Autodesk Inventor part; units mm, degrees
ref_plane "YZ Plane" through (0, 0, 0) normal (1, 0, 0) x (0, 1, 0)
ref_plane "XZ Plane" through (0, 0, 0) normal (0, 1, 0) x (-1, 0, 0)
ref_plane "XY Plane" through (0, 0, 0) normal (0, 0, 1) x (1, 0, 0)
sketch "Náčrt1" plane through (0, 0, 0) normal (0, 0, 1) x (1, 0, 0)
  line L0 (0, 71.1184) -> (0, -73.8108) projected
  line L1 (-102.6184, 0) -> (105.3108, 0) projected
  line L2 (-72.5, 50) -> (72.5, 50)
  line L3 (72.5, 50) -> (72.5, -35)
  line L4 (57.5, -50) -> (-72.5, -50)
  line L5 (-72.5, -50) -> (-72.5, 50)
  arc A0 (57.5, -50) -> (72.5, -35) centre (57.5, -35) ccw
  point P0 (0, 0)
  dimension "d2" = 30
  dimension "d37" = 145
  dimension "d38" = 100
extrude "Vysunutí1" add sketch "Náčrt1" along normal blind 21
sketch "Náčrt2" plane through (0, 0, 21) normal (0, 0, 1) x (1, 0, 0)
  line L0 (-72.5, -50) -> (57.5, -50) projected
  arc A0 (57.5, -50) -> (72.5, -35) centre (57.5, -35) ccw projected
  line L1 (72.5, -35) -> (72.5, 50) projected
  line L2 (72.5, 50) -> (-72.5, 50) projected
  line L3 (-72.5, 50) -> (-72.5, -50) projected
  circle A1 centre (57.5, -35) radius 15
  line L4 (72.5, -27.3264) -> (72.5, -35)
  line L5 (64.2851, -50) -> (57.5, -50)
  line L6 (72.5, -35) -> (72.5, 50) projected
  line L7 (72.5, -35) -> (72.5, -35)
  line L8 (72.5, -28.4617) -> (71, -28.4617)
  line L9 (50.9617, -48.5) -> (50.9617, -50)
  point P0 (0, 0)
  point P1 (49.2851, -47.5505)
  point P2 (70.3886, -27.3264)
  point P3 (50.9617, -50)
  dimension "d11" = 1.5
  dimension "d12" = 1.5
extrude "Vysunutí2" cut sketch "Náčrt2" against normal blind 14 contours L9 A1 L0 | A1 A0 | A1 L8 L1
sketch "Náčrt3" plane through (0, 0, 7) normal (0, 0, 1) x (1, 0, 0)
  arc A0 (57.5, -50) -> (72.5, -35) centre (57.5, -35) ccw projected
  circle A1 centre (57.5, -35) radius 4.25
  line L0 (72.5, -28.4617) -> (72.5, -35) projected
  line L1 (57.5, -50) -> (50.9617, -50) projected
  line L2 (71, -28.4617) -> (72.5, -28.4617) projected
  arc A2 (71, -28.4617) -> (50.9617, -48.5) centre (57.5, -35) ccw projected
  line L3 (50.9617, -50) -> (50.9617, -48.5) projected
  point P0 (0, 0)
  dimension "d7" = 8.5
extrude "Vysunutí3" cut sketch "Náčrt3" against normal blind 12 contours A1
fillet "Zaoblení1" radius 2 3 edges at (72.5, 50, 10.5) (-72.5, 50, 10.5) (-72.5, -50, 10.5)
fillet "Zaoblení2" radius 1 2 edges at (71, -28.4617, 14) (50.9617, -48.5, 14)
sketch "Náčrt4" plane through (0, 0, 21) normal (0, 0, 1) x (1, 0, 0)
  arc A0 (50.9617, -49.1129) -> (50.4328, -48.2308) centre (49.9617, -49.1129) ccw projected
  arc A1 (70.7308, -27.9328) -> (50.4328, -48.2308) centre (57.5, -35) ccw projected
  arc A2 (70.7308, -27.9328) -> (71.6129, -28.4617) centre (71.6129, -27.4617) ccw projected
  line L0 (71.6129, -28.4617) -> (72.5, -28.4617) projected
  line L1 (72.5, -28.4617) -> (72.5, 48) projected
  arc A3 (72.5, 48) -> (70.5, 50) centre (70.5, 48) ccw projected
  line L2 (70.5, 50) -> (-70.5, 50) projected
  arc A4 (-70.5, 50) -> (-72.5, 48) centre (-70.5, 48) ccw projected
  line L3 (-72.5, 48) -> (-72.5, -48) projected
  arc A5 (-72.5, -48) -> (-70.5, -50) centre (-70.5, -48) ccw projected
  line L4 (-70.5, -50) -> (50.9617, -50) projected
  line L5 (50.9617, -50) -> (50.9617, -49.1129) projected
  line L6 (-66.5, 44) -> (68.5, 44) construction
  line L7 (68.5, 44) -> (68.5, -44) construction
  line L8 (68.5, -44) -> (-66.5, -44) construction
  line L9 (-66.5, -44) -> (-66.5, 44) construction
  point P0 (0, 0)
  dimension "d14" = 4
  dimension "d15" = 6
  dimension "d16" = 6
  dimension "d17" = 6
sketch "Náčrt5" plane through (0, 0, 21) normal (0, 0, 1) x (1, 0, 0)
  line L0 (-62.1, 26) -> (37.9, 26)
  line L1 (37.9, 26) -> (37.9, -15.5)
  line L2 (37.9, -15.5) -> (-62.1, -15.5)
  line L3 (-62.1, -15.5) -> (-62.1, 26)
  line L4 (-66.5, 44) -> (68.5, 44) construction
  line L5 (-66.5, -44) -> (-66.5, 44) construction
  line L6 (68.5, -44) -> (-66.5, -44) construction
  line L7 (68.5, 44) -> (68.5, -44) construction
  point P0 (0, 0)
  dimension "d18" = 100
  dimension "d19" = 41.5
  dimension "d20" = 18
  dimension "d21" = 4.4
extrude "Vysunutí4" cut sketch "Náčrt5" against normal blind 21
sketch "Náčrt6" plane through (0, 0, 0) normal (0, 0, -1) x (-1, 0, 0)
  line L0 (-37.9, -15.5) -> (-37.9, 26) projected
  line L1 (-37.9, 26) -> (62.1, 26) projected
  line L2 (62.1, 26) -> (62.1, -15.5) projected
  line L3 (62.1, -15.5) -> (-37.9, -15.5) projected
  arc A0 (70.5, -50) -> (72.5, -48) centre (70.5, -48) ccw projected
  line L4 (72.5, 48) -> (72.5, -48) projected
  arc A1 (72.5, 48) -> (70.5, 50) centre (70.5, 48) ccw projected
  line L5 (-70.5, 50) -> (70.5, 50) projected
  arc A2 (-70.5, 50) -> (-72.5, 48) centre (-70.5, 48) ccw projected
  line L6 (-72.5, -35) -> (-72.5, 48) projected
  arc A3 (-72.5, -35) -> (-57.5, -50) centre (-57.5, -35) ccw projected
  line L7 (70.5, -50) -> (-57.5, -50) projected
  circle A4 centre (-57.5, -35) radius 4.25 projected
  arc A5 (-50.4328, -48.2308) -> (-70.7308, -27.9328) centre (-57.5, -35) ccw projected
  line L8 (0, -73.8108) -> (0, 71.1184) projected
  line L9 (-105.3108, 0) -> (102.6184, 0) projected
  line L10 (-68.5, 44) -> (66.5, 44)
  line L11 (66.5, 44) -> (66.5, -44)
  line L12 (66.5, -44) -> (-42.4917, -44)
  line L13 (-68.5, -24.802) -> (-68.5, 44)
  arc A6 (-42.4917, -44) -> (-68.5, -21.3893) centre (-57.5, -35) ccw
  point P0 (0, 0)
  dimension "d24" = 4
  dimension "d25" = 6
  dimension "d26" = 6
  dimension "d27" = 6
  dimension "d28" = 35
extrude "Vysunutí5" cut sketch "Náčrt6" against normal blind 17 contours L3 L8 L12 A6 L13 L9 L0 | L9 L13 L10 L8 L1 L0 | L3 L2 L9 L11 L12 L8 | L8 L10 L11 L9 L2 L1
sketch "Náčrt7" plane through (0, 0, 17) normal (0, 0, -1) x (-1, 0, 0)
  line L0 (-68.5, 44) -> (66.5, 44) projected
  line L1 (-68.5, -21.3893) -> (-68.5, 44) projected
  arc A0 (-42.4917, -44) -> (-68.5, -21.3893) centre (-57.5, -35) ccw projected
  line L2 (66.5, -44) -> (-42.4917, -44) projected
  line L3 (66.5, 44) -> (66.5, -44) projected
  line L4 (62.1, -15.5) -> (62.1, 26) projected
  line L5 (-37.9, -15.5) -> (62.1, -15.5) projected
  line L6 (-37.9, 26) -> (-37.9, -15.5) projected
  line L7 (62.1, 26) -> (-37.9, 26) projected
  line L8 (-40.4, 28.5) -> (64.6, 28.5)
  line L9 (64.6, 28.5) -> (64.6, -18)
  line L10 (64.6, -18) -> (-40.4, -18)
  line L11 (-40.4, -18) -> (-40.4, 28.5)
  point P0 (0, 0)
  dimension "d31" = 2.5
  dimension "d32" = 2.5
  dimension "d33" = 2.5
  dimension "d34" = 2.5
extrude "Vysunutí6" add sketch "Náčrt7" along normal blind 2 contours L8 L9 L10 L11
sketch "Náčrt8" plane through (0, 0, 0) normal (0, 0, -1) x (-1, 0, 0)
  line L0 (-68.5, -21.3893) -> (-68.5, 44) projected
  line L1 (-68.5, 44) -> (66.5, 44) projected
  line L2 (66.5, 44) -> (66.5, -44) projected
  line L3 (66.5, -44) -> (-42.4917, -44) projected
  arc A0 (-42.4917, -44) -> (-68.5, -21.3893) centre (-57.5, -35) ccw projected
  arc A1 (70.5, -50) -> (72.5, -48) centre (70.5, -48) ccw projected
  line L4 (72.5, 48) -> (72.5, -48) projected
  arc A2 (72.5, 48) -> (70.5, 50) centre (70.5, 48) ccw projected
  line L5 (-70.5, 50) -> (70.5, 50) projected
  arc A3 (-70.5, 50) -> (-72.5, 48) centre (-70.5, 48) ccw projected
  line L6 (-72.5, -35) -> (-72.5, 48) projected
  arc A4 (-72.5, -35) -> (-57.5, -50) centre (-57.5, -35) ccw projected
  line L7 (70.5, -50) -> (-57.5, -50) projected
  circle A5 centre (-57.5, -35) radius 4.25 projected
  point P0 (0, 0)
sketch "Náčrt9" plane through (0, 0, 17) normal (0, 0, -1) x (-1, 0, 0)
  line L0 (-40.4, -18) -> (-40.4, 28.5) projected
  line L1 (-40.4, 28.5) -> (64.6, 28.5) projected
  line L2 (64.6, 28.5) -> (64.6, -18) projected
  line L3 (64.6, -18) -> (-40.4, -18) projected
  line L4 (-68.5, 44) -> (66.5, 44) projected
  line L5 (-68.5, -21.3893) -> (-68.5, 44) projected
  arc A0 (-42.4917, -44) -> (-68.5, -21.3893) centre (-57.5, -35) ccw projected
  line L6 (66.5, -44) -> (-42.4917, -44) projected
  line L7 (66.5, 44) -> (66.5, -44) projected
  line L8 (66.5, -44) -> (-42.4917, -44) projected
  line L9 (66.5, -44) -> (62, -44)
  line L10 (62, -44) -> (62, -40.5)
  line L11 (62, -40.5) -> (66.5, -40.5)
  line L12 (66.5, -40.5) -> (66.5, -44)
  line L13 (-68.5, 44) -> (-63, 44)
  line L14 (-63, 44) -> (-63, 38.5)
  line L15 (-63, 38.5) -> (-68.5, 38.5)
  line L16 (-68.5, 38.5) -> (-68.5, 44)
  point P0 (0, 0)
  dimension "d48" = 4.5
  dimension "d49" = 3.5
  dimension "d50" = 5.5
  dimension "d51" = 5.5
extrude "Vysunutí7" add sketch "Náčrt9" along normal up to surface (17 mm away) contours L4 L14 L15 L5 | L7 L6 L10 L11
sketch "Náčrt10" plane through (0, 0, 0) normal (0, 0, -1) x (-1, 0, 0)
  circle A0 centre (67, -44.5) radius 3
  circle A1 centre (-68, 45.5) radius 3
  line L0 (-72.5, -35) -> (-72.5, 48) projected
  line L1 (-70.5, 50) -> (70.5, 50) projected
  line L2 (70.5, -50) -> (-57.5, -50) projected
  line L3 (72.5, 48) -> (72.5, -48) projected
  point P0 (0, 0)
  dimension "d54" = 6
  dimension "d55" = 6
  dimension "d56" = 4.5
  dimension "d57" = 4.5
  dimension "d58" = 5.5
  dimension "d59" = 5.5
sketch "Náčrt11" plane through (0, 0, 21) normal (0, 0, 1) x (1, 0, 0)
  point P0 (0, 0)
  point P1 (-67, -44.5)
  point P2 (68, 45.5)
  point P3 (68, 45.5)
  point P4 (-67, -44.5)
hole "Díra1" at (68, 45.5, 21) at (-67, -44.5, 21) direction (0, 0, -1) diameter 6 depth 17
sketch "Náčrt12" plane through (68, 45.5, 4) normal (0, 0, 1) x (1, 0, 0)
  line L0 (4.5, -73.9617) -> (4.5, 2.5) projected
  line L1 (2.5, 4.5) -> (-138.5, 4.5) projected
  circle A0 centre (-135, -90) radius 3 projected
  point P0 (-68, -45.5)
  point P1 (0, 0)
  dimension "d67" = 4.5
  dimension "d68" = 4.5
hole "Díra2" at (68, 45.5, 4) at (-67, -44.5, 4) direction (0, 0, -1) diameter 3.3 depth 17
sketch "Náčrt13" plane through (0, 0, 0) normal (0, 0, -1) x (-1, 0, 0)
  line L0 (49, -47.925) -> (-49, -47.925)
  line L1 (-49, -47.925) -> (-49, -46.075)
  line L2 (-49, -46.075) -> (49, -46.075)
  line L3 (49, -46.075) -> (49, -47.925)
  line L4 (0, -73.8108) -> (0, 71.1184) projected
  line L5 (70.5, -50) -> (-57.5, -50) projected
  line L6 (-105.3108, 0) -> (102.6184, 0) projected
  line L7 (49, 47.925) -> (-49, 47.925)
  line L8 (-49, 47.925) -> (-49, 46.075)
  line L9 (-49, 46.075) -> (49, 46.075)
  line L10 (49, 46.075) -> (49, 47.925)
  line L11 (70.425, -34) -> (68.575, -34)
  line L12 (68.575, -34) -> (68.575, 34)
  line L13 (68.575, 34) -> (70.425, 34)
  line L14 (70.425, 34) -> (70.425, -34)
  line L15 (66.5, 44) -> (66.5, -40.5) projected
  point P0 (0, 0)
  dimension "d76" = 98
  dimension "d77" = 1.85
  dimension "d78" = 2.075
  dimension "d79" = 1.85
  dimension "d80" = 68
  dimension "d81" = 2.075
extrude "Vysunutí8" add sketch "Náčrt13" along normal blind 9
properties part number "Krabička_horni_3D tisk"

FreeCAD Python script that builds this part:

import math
import FreeCAD as App
import Part
import Sketcher
from FreeCAD import Vector


def edges_at(feature, points):
    """Names of the edges that pass closest to the given points."""
    edges = feature.Shape.Edges
    near = lambda p: min(range(len(edges)), key=lambda i: edges[i].distToShape(Part.Vertex(*p))[0])
    return sorted({f"Edge{near(p) + 1}" for p in points})


def add_polygon(sketch, points):
    """Adds a closed chain of lines whose ends are joined by coincident constraints."""
    first, n = sketch.GeometryCount, len(points)
    for a, b in zip(points, points[1:] + points[:1]):
        sketch.addGeometry(Part.LineSegment(App.Vector(*a, 0), App.Vector(*b, 0)), False)
    for i in range(n):
        sketch.addConstraint(Sketcher.Constraint("Coincident", first + i, 2, first + (i + 1) % n, 1))

doc = App.newDocument("Part")
body = doc.addObject("PartDesign::Body", "Body")

# Sketch on XY plane
sketch1 = doc.addObject("Sketcher::SketchObject", "Sketch")
body.addObject(sketch1)
sketch1.AttachmentSupport = (doc.XY_Plane, [""])
sketch1.MapMode = "FlatFace"
sketch1.addGeometry([
    Part.LineSegment(Vector(72.5, 50, 0), Vector(-72.5, 50, 0)),  # 0
    Part.LineSegment(Vector(-72.5, 50, 0), Vector(-72.5, -50, 0)),  # 1
    Part.LineSegment(Vector(-72.5, -50, 0), Vector(57.5, -50, 0)),  # 2
    Part.ArcOfCircle(Part.Circle(Vector(57.5, -35, 0), Vector(0, 0, 1), 15), math.radians(-90), math.radians(0)),  # 3
    Part.LineSegment(Vector(72.5, -35, 0), Vector(72.5, 50, 0)),  # 4
], False)
sketch1.addConstraint([
    Sketcher.Constraint("Coincident", 0, 2, 1, 1),
    Sketcher.Constraint("Coincident", 1, 2, 2, 1),
    Sketcher.Constraint("Tangent", 2, 2, 3, 1),
    Sketcher.Constraint("Tangent", 3, 2, 4, 1),
    Sketcher.Constraint("Coincident", 4, 2, 0, 1),
    Sketcher.Constraint("Horizontal", 0),
    Sketcher.Constraint("Vertical", 1),
    Sketcher.Constraint("Horizontal", 2),
    Sketcher.Constraint("Vertical", 4),
    Sketcher.Constraint("Symmetric", 1, 2, 4, 2, -1, 1),
    Sketcher.Constraint("Radius", 3, 15.0),
    Sketcher.Constraint("DistanceX", 0, 2, 0, 1, 145.0),
    Sketcher.Constraint("DistanceY", 1, 2, 1, 1, 100.0),
])
pad1 = doc.addObject("PartDesign::Pad", "Pad")
body.addObject(pad1)
pad1.Profile = sketch1
pad1.Length = 21

# Sketch on XY plane
sketch2 = doc.addObject("Sketcher::SketchObject", "Sketch001")
body.addObject(sketch2)
sketch2.AttachmentSupport = (doc.XY_Plane, [""])
sketch2.MapMode = "FlatFace"
sketch2.AttachmentOffset = App.Placement(Vector(0, 0, 21), App.Rotation())
sketch2.addGeometry([
    Part.LineSegment(Vector(50.9617, -48.5, 0), Vector(50.9617, -50, 0)),  # 0
    Part.LineSegment(Vector(50.9617, -50, 0), Vector(57.5, -50, 0)),  # 1
    Part.ArcOfCircle(Part.Circle(Vector(57.5, -35, 0), Vector(0, 0, 1), 15), math.radians(-90), math.radians(0)),  # 2
    Part.LineSegment(Vector(72.5, -35, 0), Vector(72.5, -28.4617, 0)),  # 3
    Part.LineSegment(Vector(72.5, -28.4617, 0), Vector(71, -28.4617, 0)),  # 4
    Part.ArcOfCircle(Part.Circle(Vector(57.5, -35, 0), Vector(0, 0, 1), 15), math.radians(25.841766), math.radians(244.158234)),  # 5
], False)
sketch2.addConstraint([
    Sketcher.Constraint("Coincident", 0, 2, 1, 1),
    Sketcher.Constraint("Tangent", 1, 2, 2, 1),
    Sketcher.Constraint("Tangent", 2, 2, 3, 1),
    Sketcher.Constraint("Coincident", 3, 2, 4, 1),
    Sketcher.Constraint("Coincident", 4, 2, 5, 1),
    Sketcher.Constraint("Coincident", 5, 2, 0, 1),
    Sketcher.Constraint("Vertical", 0),
    Sketcher.Constraint("Horizontal", 1),
    Sketcher.Constraint("Vertical", 3),
    Sketcher.Constraint("Horizontal", 4),
    Sketcher.Constraint("Coincident", 5, 3, 2, 3),
    Sketcher.Constraint("Equal", 2, 5),
    Sketcher.Constraint("Equal", 4, 0),
    Sketcher.Constraint("DistanceX", 4, 2, 4, 1, 1.5),
    Sketcher.Constraint("Radius", 2, 15.0),
    Sketcher.Constraint("DistanceY", 2, 3, -1, 1, 35.0),
    Sketcher.Constraint("DistanceX", -1, 1, 4, 2, 71.0),
])
pocket1 = doc.addObject("PartDesign::Pocket", "Pocket")
body.addObject(pocket1)
pocket1.Profile = sketch2
pocket1.Length = 14

# Sketch on XY plane
sketch3 = doc.addObject("Sketcher::SketchObject", "Sketch002")
body.addObject(sketch3)
sketch3.AttachmentSupport = (doc.XY_Plane, [""])
sketch3.MapMode = "FlatFace"
sketch3.AttachmentOffset = App.Placement(Vector(0, 0, 7), App.Rotation())
sketch3.addGeometry(Part.Circle(Vector(57.5, -35, 0), Vector(0, 0, 1), 4.25), False)
sketch3.addConstraint([
    Sketcher.Constraint("Diameter", 0, 8.5),
    Sketcher.Constraint("DistanceY", 0, 3, -1, 1, 35.0),
    Sketcher.Constraint("DistanceX", -1, 1, 0, 3, 57.5),
])
pocket2 = doc.addObject("PartDesign::Pocket", "Pocket001")
body.addObject(pocket2)
pocket2.Profile = sketch3
pocket2.Length = 12
doc.recompute()

fillet = doc.addObject("PartDesign::Fillet", "Fillet")
body.addObject(fillet)
fillet.Base = (pocket2, edges_at(pocket2, [(72.5, 50, 10.5), (-72.5, 50, 10.5), (-72.5, -50, 10.5)]))
fillet.Radius = 2
doc.recompute()

fillet2 = doc.addObject("PartDesign::Fillet", "Fillet001")
body.addObject(fillet2)
fillet2.Base = (fillet, edges_at(fillet, [(71, -28.462, 14), (50.962, -48.5, 14)]))
fillet2.Radius = 1

# Sketch on XY plane
sketch4 = doc.addObject("Sketcher::SketchObject", "Sketch003")
body.addObject(sketch4)
sketch4.AttachmentSupport = (doc.XY_Plane, [""])
sketch4.MapMode = "FlatFace"
sketch4.AttachmentOffset = App.Placement(Vector(0, 0, 21), App.Rotation())
add_polygon(sketch4, [(37.9, 26), (-62.1, 26), (-62.1, -15.5), (37.9, -15.5)])  # lines 0-3
sketch4.addConstraint([
    Sketcher.Constraint("Horizontal", 0),
    Sketcher.Constraint("Vertical", 1),
    Sketcher.Constraint("Horizontal", 2),
    Sketcher.Constraint("Vertical", 3),
    Sketcher.Constraint("DistanceX", 0, 2, 0, 1, 100.0),
    Sketcher.Constraint("DistanceY", 1, 2, 1, 1, 41.5),
    Sketcher.Constraint("DistanceY", -1, 1, 0, 2, 26.0),
    Sketcher.Constraint("DistanceX", 0, 2, -1, 1, 62.1),
])
pocket3 = doc.addObject("PartDesign::Pocket", "Pocket002")
body.addObject(pocket3)
pocket3.Profile = sketch4
pocket3.Length = 21

# Sketch on XY plane
sketch5 = doc.addObject("Sketcher::SketchObject", "Sketch004")
body.addObject(sketch5)
sketch5.AttachmentSupport = (doc.XY_Plane, [""])
sketch5.MapMode = "FlatFace"
sketch5.addGeometry(Part.LineSegment(Vector(42.4917, -44, 0), Vector(-66.5, -44, 0)), False)  # 0
sketch5.addGeometry(Part.LineSegment(Vector(-66.5, -44, 0), Vector(-66.5, 44, 0)), False)  # 1
sketch5.addGeometry(Part.LineSegment(Vector(-66.5, 44, 0), Vector(68.5, 44, 0)), False)  # 2
sketch5.addGeometry(Part.LineSegment(Vector(68.5, 44, 0), Vector(68.5, -21.3893, 0)), False)  # 3
sketch5.addGeometry(Part.ArcOfCircle(Part.Circle(Vector(57.5, -35, 0), Vector(0, 0, 1), 17.499973), math.radians(51.055284), math.radians(210.949775)), False)  # 4
add_polygon(sketch5, [(37.9, -15.5), (37.9, 26), (-62.1, 26), (-62.1, -15.5)])  # lines 5-8
sketch5.addConstraint([
    Sketcher.Constraint("Coincident", 0, 2, 1, 1),
    Sketcher.Constraint("Coincident", 1, 2, 2, 1),
    Sketcher.Constraint("Coincident", 2, 2, 3, 1),
    Sketcher.Constraint("Coincident", 3, 2, 4, 1),
    Sketcher.Constraint("Coincident", 4, 2, 0, 1),
    Sketcher.Constraint("Horizontal", 0),
    Sketcher.Constraint("Vertical", 1),
    Sketcher.Constraint("Horizontal", 2),
    Sketcher.Constraint("Vertical", 3),
    Sketcher.Constraint("Vertical", 5),
    Sketcher.Constraint("Horizontal", 6),
    Sketcher.Constraint("Vertical", 7),
    Sketcher.Constraint("Horizontal", 8),
    Sketcher.Constraint("Radius", 4, 17.5),
    Sketcher.Constraint("DistanceY", 4, 3, -1, 1, 35.0),
    Sketcher.Constraint("DistanceX", 2, 1, 2, 2, 135.0),
    Sketcher.Constraint("DistanceX", 6, 2, 6, 1, 100.0),
    Sketcher.Constraint("DistanceY", 1, 1, 1, 2, 88.0),
    Sketcher.Constraint("DistanceY", 5, 1, 5, 2, 41.5),
    Sketcher.Constraint("DistanceY", 0, 2, -1, 1, 44.0),
    Sketcher.Constraint("DistanceY", -1, 1, 5, 2, 26.0),
    Sketcher.Constraint("DistanceX", 0, 2, 4, 3, 124.0),
    Sketcher.Constraint("DistanceX", -1, 1, 4, 3, 57.5),
    Sketcher.Constraint("DistanceX", -1, 1, 5, 2, 37.9),
])
pocket4 = doc.addObject("PartDesign::Pocket", "Pocket003")
body.addObject(pocket4)
pocket4.Profile = sketch5
pocket4.Length = 17
pocket4.Reversed = True

# Sketch on XY plane
sketch6 = doc.addObject("Sketcher::SketchObject", "Sketch005")
body.addObject(sketch6)
sketch6.AttachmentSupport = (doc.XY_Plane, [""])
sketch6.MapMode = "FlatFace"
sketch6.AttachmentOffset = App.Placement(Vector(0, 0, 17), App.Rotation())
add_polygon(sketch6, [(-64.6, 28.5), (40.4, 28.5), (40.4, -18), (-64.6, -18)])  # lines 0-3
add_polygon(sketch6, [(-62.1, 26), (-62.1, -15.5), (37.9, -15.5), (37.9, 26)])  # lines 4-7
sketch6.addConstraint([
    Sketcher.Constraint("Horizontal", 0),
    Sketcher.Constraint("Vertical", 1),
    Sketcher.Constraint("Horizontal", 2),
    Sketcher.Constraint("Vertical", 3),
    Sketcher.Constraint("Vertical", 4),
    Sketcher.Constraint("Horizontal", 5),
    Sketcher.Constraint("Vertical", 6),
    Sketcher.Constraint("Horizontal", 7),
    Sketcher.Constraint("DistanceX", 2, 2, 4, 2, 2.5),
    Sketcher.Constraint("DistanceY", 2, 2, 4, 2, 2.5),
    Sketcher.Constraint("DistanceX", 5, 2, 1, 2, 2.5),
    Sketcher.Constraint("DistanceY", 6, 2, 0, 2, 2.5),
    Sketcher.Constraint("DistanceX", 0, 1, 0, 2, 105.0),
    Sketcher.Constraint("DistanceY", 1, 2, 1, 1, 46.5),
    Sketcher.Constraint("DistanceY", 1, 2, -1, 1, 18.0),
    Sketcher.Constraint("DistanceX", -1, 1, 0, 2, 40.4),
])
pad2 = doc.addObject("PartDesign::Pad", "Pad001")
body.addObject(pad2)
pad2.Profile = sketch6
pad2.Length = 2
pad2.Reversed = True

# Sketch on XY plane
sketch7 = doc.addObject("Sketcher::SketchObject", "Sketch006")
body.addObject(sketch7)
sketch7.AttachmentSupport = (doc.XY_Plane, [""])
sketch7.MapMode = "FlatFace"
sketch7.AttachmentOffset = App.Placement(Vector(0, 0, 17), App.Rotation())
add_polygon(sketch7, [(63, 44), (68.5, 44), (68.5, 38.5), (63, 38.5)])  # lines 0-3
add_polygon(sketch7, [(-66.5, -44), (-66.5, -40.5), (-62, -40.5), (-62, -44)])  # lines 4-7
sketch7.addConstraint([
    Sketcher.Constraint("Horizontal", 0),
    Sketcher.Constraint("Vertical", 1),
    Sketcher.Constraint("Horizontal", 2),
    Sketcher.Constraint("Vertical", 3),
    Sketcher.Constraint("Vertical", 4),
    Sketcher.Constraint("Horizontal", 5),
    Sketcher.Constraint("Vertical", 6),
    Sketcher.Constraint("Horizontal", 7),
    Sketcher.Constraint("Equal", 2, 1),
    Sketcher.Constraint("DistanceX", 0, 1, 0, 2, 5.5),
    Sketcher.Constraint("DistanceX", 5, 1, 5, 2, 4.5),
    Sketcher.Constraint("DistanceY", 4, 1, 4, 2, 3.5),
    Sketcher.Constraint("DistanceY", -1, 1, 0, 2, 44.0),
    Sketcher.Constraint("DistanceX", -1, 1, 2, 2, 63.0),
    Sketcher.Constraint("DistanceX", 5, 2, -1, 1, 62.0),
    Sketcher.Constraint("DistanceY", 6, 2, -1, 1, 44.0),
])
pad3 = doc.addObject("PartDesign::Pad", "Pad002")
body.addObject(pad3)
pad3.Profile = sketch7
pad3.Length = 17
pad3.Reversed = True

# Sketch on XY plane
sketch8 = doc.addObject("Sketcher::SketchObject", "Sketch007")
body.addObject(sketch8)
sketch8.AttachmentSupport = (doc.XY_Plane, [""])
sketch8.MapMode = "FlatFace"
sketch8.AttachmentOffset = App.Placement(Vector(0, 0, 21), App.Rotation())
sketch8.addGeometry([
    Part.Circle(Vector(68, 45.5, 0), Vector(0, 0, 1), 3),
    Part.Circle(Vector(-67, -44.5, 0), Vector(0, 0, 1), 3),
], False)
sketch8.addConstraint([
    Sketcher.Constraint("Equal", 0, 1),
    Sketcher.Constraint("Diameter", 0, 6.0),
    Sketcher.Constraint("DistanceX", -1, 1, 0, 3, 68.0),
    Sketcher.Constraint("DistanceX", 1, 3, -1, 1, 67.0),
    Sketcher.Constraint("DistanceY", 1, 3, 0, 3, 90.0),
    Sketcher.Constraint("DistanceY", -1, 1, 0, 3, 45.5),
])
doc.recompute()
hole = doc.addObject("PartDesign::Hole", "Hole")
body.addObject(hole)
hole.Profile = sketch8
hole.ThreadType = "None"
hole.Diameter = 6
hole.DepthType = "Dimension"
hole.Depth = 17
hole.DrillPoint = "Flat"

# Sketch on XY plane
sketch9 = doc.addObject("Sketcher::SketchObject", "Sketch008")
body.addObject(sketch9)
sketch9.AttachmentSupport = (doc.XY_Plane, [""])
sketch9.MapMode = "FlatFace"
sketch9.AttachmentOffset = App.Placement(Vector(0, 0, 4), App.Rotation())
sketch9.addGeometry([
    Part.Circle(Vector(68, 45.5, 0), Vector(0, 0, 1), 1.65),
    Part.Circle(Vector(-67, -44.5, 0), Vector(0, 0, 1), 1.65),
], False)
sketch9.addConstraint([
    Sketcher.Constraint("Equal", 0, 1),
    Sketcher.Constraint("Diameter", 0, 3.3),
    Sketcher.Constraint("DistanceX", -1, 1, 0, 3, 68.0),
    Sketcher.Constraint("DistanceX", 1, 3, -1, 1, 67.0),
    Sketcher.Constraint("DistanceY", 1, 3, 0, 3, 90.0),
    Sketcher.Constraint("DistanceY", -1, 1, 0, 3, 45.5),
])
doc.recompute()
hole2 = doc.addObject("PartDesign::Hole", "Hole001")
body.addObject(hole2)
hole2.Profile = sketch9
hole2.ThreadType = "None"
hole2.Diameter = 3.3
hole2.DepthType = "Dimension"
hole2.Depth = 17
hole2.DrillPoint = "Flat"

# Sketch on XY plane
sketch10 = doc.addObject("Sketcher::SketchObject", "Sketch009")
body.addObject(sketch10)
sketch10.AttachmentSupport = (doc.XY_Plane, [""])
sketch10.MapMode = "FlatFace"
add_polygon(sketch10, [(49, 46.075), (-49, 46.075), (-49, 47.925), (49, 47.925)])  # lines 0-3
add_polygon(sketch10, [(-68.575, 34), (-68.575, -34), (-70.425, -34), (-70.425, 34)])  # lines 4-7
add_polygon(sketch10, [(-49, -47.925), (-49, -46.075), (49, -46.075), (49, -47.925)])  # lines 8-11
sketch10.addConstraint([
    Sketcher.Constraint("Horizontal", 0),
    Sketcher.Constraint("Vertical", 1),
    Sketcher.Constraint("Horizontal", 2),
    Sketcher.Constraint("Vertical", 3),
    Sketcher.Constraint("Vertical", 4),
    Sketcher.Constraint("Horizontal", 5),
    Sketcher.Constraint("Vertical", 6),
    Sketcher.Constraint("Horizontal", 7),
    Sketcher.Constraint("Vertical", 8),
    Sketcher.Constraint("Horizontal", 9),
    Sketcher.Constraint("Vertical", 10),
    Sketcher.Constraint("Horizontal", 11),
    Sketcher.Constraint("Symmetric", 3, 2, 8, 2, -1, 1),
    Sketcher.Constraint("Symmetric", 1, 2, 10, 2, -1, 1),
    Sketcher.Constraint("Vertical", 1, 2, 8, 2),
    Sketcher.Constraint("Equal", 7, 1),
    Sketcher.Constraint("DistanceX", 0, 2, 0, 1, 98.0),
    Sketcher.Constraint("DistanceY", 4, 2, 4, 1, 68.0),
    Sketcher.Constraint("DistanceX", 5, 2, 5, 1, 1.85),
    Sketcher.Constraint("DistanceY", 4, 2, -1, 1, 34.0),
    Sketcher.Constraint("DistanceY", 9, 2, 2, 2, 94.0),
    Sketcher.Constraint("DistanceX", 4, 2, -1, 1, 68.575),
])
pad4 = doc.addObject("PartDesign::Pad", "Pad003")
body.addObject(pad4)
pad4.Profile = sketch10
pad4.Length = 9
pad4.Reversed = True

doc.recompute()
